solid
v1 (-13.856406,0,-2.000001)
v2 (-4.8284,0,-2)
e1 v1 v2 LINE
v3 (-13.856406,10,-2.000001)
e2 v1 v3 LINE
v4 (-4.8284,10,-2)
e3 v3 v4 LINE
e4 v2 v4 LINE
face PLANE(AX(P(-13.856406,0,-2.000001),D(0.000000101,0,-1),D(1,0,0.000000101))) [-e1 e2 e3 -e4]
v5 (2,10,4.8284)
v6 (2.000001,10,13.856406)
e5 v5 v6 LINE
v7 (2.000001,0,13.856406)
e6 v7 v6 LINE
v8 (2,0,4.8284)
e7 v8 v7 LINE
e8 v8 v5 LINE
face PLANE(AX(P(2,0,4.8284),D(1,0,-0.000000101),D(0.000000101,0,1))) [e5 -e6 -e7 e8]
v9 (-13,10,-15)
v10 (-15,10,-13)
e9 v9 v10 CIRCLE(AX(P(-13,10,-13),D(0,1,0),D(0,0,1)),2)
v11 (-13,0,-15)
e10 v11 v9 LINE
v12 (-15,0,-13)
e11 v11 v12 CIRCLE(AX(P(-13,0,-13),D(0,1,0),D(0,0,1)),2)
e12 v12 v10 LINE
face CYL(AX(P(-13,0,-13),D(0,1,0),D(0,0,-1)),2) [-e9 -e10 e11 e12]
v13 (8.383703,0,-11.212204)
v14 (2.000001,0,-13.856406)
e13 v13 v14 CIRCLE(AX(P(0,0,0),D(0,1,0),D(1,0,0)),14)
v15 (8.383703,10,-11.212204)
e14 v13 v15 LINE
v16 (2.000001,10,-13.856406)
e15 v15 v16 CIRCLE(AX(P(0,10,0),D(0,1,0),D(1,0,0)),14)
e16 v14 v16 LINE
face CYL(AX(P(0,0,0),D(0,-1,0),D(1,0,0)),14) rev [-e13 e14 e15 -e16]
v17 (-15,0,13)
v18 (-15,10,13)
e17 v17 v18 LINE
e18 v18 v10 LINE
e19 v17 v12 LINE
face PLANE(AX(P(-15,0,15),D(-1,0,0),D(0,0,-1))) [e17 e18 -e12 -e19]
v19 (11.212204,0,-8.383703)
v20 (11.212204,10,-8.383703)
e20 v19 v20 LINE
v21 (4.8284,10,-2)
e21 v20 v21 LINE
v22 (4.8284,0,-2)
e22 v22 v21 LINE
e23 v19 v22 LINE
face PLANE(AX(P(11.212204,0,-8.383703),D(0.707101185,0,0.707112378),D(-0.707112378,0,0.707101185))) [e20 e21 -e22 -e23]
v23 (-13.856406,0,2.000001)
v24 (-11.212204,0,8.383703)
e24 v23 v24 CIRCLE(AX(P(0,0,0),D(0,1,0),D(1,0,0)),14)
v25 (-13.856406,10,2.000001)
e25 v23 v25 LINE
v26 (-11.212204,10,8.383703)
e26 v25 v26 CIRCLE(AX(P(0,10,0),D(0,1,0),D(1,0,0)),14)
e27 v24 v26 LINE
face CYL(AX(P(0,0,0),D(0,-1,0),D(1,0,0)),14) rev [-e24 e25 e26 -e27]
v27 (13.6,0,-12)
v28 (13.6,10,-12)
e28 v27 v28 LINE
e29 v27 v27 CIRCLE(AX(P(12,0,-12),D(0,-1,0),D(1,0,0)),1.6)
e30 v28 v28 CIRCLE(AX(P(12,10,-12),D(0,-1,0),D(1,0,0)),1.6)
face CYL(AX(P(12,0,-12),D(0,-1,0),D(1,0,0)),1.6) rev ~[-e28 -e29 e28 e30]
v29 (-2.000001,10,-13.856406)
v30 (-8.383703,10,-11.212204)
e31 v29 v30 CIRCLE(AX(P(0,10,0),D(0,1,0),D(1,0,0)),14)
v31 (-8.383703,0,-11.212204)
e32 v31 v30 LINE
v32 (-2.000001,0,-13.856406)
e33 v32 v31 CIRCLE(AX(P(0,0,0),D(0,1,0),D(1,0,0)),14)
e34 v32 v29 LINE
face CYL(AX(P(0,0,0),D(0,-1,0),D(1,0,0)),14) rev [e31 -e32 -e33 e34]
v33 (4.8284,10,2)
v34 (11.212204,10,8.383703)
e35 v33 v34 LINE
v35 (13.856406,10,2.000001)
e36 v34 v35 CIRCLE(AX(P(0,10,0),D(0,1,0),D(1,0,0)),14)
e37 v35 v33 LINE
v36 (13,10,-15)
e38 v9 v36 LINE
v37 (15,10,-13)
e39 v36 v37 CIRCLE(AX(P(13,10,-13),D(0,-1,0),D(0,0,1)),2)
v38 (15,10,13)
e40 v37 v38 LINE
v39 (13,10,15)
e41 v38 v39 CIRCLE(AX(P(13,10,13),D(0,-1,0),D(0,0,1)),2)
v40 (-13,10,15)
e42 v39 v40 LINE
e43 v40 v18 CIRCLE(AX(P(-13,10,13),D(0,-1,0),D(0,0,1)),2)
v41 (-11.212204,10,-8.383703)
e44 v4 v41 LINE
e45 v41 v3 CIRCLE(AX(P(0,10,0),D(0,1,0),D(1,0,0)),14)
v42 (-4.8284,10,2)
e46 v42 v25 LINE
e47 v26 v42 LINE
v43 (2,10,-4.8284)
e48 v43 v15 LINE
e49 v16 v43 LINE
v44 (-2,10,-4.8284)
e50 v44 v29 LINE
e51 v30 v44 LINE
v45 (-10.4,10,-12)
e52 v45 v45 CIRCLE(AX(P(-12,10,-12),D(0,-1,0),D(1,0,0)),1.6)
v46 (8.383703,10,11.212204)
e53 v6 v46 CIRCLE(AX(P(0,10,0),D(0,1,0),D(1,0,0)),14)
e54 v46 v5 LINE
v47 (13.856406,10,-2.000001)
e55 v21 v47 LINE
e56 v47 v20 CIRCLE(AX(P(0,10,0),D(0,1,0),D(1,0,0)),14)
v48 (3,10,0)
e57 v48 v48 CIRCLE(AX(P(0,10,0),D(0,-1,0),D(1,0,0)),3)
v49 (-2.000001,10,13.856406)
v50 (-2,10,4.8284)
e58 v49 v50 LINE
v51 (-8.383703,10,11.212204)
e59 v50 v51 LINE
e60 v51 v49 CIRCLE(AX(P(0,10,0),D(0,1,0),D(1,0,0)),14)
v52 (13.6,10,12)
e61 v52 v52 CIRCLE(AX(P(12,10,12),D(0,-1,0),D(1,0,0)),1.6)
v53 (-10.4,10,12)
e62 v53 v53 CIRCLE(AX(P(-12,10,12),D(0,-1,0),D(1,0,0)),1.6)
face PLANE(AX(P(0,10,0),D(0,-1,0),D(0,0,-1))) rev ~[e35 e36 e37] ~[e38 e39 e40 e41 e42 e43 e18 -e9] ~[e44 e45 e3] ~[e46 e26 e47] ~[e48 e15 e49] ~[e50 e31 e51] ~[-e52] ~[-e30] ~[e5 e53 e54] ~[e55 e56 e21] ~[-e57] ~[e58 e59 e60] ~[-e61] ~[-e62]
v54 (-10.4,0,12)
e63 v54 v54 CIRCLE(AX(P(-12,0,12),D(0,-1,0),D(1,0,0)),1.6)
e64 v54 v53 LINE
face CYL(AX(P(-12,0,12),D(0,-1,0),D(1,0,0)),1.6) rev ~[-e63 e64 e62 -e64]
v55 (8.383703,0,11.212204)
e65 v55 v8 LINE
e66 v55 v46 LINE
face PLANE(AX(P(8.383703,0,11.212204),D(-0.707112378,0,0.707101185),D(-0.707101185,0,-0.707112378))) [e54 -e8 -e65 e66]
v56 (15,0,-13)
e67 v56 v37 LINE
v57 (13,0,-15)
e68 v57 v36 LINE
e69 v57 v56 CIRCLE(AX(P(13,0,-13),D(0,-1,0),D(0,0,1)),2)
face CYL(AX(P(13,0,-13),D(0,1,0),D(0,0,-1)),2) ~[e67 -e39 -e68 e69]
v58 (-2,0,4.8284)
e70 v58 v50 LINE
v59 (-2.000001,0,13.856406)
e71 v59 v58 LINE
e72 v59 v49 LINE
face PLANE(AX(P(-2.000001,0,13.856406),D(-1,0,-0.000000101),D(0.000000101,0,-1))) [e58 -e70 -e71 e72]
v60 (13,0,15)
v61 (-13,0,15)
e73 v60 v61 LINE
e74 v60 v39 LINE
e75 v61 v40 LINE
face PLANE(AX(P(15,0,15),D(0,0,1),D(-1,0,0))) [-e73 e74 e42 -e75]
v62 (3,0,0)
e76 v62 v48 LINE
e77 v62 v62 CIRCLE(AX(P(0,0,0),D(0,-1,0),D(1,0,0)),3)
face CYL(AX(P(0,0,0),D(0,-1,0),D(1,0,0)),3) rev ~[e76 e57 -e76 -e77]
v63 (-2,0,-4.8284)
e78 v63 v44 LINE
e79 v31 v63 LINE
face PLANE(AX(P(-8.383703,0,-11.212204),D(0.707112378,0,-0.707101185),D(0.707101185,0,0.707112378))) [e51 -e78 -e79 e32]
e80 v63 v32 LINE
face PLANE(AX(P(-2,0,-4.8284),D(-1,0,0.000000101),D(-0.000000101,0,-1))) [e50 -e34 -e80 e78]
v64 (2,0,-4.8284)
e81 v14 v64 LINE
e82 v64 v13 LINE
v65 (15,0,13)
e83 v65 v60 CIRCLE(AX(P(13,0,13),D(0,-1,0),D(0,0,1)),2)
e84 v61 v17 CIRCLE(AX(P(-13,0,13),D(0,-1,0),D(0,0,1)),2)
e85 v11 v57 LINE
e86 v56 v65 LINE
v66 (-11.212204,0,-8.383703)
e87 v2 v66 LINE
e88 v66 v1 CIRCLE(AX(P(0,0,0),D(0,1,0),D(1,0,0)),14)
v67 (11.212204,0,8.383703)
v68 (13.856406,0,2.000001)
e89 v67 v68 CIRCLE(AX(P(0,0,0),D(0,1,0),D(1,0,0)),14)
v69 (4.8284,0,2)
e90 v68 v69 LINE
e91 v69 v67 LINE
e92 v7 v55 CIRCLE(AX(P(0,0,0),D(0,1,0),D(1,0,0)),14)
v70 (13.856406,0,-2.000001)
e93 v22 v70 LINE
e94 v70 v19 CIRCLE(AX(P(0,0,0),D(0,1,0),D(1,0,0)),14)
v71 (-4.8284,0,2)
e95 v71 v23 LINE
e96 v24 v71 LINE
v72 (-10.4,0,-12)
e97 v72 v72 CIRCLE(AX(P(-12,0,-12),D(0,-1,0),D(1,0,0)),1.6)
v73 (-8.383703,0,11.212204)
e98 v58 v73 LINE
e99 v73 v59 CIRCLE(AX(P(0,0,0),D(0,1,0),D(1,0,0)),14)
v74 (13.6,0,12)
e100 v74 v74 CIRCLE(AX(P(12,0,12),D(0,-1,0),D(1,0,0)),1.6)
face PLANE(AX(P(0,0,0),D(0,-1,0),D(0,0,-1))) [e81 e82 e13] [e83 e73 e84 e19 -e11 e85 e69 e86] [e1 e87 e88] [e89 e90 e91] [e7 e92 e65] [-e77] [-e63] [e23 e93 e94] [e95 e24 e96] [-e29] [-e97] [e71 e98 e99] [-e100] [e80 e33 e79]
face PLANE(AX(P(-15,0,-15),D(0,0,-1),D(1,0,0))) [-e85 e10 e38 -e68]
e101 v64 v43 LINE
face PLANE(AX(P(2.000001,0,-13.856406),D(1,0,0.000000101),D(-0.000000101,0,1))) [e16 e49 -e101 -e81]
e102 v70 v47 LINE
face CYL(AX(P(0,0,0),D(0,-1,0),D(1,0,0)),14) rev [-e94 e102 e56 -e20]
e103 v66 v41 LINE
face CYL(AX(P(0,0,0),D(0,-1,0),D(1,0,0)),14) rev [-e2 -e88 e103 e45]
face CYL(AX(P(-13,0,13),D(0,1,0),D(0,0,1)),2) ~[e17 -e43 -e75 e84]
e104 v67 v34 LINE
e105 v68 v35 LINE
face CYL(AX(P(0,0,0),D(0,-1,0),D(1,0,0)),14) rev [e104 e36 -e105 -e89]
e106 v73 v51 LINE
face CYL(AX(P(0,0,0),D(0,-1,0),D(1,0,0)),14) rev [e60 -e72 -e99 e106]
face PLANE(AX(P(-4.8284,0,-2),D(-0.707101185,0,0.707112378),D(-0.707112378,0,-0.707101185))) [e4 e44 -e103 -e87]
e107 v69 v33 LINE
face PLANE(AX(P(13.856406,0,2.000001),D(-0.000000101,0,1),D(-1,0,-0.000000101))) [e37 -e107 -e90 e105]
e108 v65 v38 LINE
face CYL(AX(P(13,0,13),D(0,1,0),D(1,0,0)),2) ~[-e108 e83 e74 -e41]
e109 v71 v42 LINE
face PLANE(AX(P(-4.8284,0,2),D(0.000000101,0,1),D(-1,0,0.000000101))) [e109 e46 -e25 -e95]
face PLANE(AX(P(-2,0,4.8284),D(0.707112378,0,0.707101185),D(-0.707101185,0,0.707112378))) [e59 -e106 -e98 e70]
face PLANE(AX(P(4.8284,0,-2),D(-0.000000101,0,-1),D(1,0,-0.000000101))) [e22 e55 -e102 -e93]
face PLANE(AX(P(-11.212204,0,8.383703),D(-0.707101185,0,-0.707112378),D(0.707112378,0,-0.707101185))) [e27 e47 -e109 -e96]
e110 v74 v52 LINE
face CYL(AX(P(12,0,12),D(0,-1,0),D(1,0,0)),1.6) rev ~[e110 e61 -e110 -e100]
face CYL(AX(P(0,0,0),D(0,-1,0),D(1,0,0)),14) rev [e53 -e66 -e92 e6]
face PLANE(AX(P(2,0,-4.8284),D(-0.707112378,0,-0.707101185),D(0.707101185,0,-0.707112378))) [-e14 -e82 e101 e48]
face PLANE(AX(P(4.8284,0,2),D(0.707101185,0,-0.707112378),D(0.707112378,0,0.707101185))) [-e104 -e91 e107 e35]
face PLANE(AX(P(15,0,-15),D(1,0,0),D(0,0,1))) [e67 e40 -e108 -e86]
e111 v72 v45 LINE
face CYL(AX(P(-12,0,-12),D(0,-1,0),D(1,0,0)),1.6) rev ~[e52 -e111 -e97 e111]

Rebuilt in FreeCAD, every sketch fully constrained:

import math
import FreeCAD as App
import Part
import Sketcher
Q = App.Units.Quantity


def edges_at(feature, points):
    """Names of the edges that pass closest to the given points."""
    edges = feature.Shape.Edges
    near = lambda p: min(range(len(edges)), key=lambda i: edges[i].distToShape(Part.Vertex(*p))[0])
    return sorted({f"Edge{near(p) + 1}" for p in points})


def add_polygon(sketch, points):
    """Adds a closed chain of lines whose ends are joined by coincident constraints."""
    first, n = sketch.GeometryCount, len(points)
    for a, b in zip(points, points[1:] + points[:1]):
        sketch.addGeometry(Part.LineSegment(App.Vector(*a, 0), App.Vector(*b, 0)), False)
    for i in range(n):
        sketch.addConstraint(Sketcher.Constraint("Coincident", first + i, 2, first + (i + 1) % n, 1))

doc = App.newDocument("Part")
params = doc.addObject("Spreadsheet::Sheet", "Params")
for row, (alias, value) in enumerate([
    ("sketch1_diameter", "6 mm"),
    ("sketch1_radius", "14 mm"),
    ("sketch1_diameter2", "3.2 mm"),
    ("sketch1_width", "30 mm"),
    ("pad1_length", "10 mm"),
    ("fillet_radius", "2 mm"),
], start=1):
    params.set(f"A{row}", alias)
    params.set(f"B{row}", "=" + value)
    params.setAlias(f"B{row}", alias)

body = doc.addObject("PartDesign::Body", "Body")

sketch1 = doc.addObject("Sketcher::SketchObject", "Sketch")
body.addObject(sketch1)
sketch1.AttachmentSupport = (doc.XZ_Plane, [""])
sketch1.MapMode = "FlatFace"
add_polygon(sketch1, [(-15, 15), (-15, -15), (15, -15), (15, 15)])
sketch1.addGeometry(Part.Circle(App.Vector(-12, -12, 0), App.Vector(0, 0, 1), 1.6), False)
sketch1.addGeometry(Part.LineSegment(App.Vector(-8.4, -11.2, 0), App.Vector(-2, -4.8, 0)), False)
sketch1.addGeometry(Part.LineSegment(App.Vector(-2, -4.8, 0), App.Vector(-2, -13.9, 0)), False)
sketch1.addGeometry(Part.ArcOfCircle(Part.Circle(App.Vector(0, 0, 0), App.Vector(0, 0, 1), 14), math.radians(-127), math.radians(-98)), False)
sketch1.addGeometry(Part.ArcOfCircle(Part.Circle(App.Vector(0, 0, 0), App.Vector(0, 0, 1), 14), math.radians(-172), math.radians(-143)), False)
sketch1.addGeometry(Part.LineSegment(App.Vector(-13.9, -2, 0), App.Vector(-4.8, -2, 0)), False)
sketch1.addGeometry(Part.LineSegment(App.Vector(-4.8, -2, 0), App.Vector(-11.2, -8.4, 0)), False)
sketch1.addGeometry(Part.ArcOfCircle(Part.Circle(App.Vector(0, 0, 0), App.Vector(0, 0, 1), 14), math.radians(-82), math.radians(-53)), False)
sketch1.addGeometry(Part.LineSegment(App.Vector(2, -13.9, 0), App.Vector(2, -4.8, 0)), False)
sketch1.addGeometry(Part.LineSegment(App.Vector(2, -4.8, 0), App.Vector(8.4, -11.2, 0)), False)
sketch1.addGeometry(Part.Circle(App.Vector(12, -12, 0), App.Vector(0, 0, 1), 1.6), False)
sketch1.addGeometry(Part.ArcOfCircle(Part.Circle(App.Vector(0, 0, 0), App.Vector(0, 0, 1), 14), math.radians(-37), math.radians(-8)), False)
sketch1.addGeometry(Part.LineSegment(App.Vector(11.2, -8.4, 0), App.Vector(4.8, -2, 0)), False)
sketch1.addGeometry(Part.LineSegment(App.Vector(4.8, -2, 0), App.Vector(13.9, -2, 0)), False)
sketch1.addGeometry(Part.ArcOfCircle(Part.Circle(App.Vector(0, 0, 0), App.Vector(0, 0, 1), 14), math.radians(143), math.radians(172)), False)
sketch1.addGeometry(Part.LineSegment(App.Vector(-11.2, 8.4, 0), App.Vector(-4.8, 2, 0)), False)
sketch1.addGeometry(Part.LineSegment(App.Vector(-4.8, 2, 0), App.Vector(-13.9, 2, 0)), False)
sketch1.addGeometry(Part.Circle(App.Vector(-12, 12, 0), App.Vector(0, 0, 1), 1.6), False)
sketch1.addGeometry(Part.LineSegment(App.Vector(-2, 4.8, 0), App.Vector(-8.4, 11.2, 0)), False)
sketch1.addGeometry(Part.ArcOfCircle(Part.Circle(App.Vector(0, 0, 0), App.Vector(0, 0, 1), 14), math.radians(98), math.radians(127)), False)
sketch1.addGeometry(Part.LineSegment(App.Vector(-2, 13.9, 0), App.Vector(-2, 4.8, 0)), False)
sketch1.addGeometry(Part.Circle(App.Vector(0, 0, 0), App.Vector(0, 0, 1), 3), False)
sketch1.addGeometry(Part.ArcOfCircle(Part.Circle(App.Vector(0, 0, 0), App.Vector(0, 0, 1), 14), math.radians(8), math.radians(37)), False)
sketch1.addGeometry(Part.LineSegment(App.Vector(13.9, 2, 0), App.Vector(4.8, 2, 0)), False)
sketch1.addGeometry(Part.LineSegment(App.Vector(4.8, 2, 0), App.Vector(11.2, 8.4, 0)), False)
sketch1.addGeometry(Part.LineSegment(App.Vector(2, 4.8, 0), App.Vector(2, 13.9, 0)), False)
sketch1.addGeometry(Part.ArcOfCircle(Part.Circle(App.Vector(0, 0, 0), App.Vector(0, 0, 1), 14), math.radians(53), math.radians(82)), False)
sketch1.addGeometry(Part.LineSegment(App.Vector(8.4, 11.2, 0), App.Vector(2, 4.8, 0)), False)
sketch1.addGeometry(Part.Circle(App.Vector(12, 12, 0), App.Vector(0, 0, 1), 1.6), False)
sketch1.addConstraint([
    Sketcher.Constraint("Coincident", 5, 2, 6, 1),
    Sketcher.Constraint("Coincident", 6, 2, 7, 2),
    Sketcher.Constraint("Coincident", 7, 1, 5, 1),
    Sketcher.Constraint("Coincident", 8, 1, 9, 1),
    Sketcher.Constraint("Coincident", 9, 2, 10, 1),
    Sketcher.Constraint("Coincident", 10, 2, 8, 2),
    Sketcher.Constraint("Coincident", 11, 1, 12, 1),
    Sketcher.Constraint("Coincident", 12, 2, 13, 1),
    Sketcher.Constraint("Coincident", 13, 2, 11, 2),
    Sketcher.Constraint("Coincident", 15, 1, 16, 1),
    Sketcher.Constraint("Coincident", 16, 2, 17, 1),
    Sketcher.Constraint("Coincident", 17, 2, 15, 2),
    Sketcher.Constraint("Coincident", 18, 1, 19, 1),
    Sketcher.Constraint("Coincident", 19, 2, 20, 1),
    Sketcher.Constraint("Coincident", 20, 2, 18, 2),
    Sketcher.Constraint("Coincident", 22, 2, 23, 2),
    Sketcher.Constraint("Coincident", 23, 1, 24, 1),
    Sketcher.Constraint("Coincident", 24, 2, 22, 1),
    Sketcher.Constraint("Coincident", 26, 1, 27, 1),
    Sketcher.Constraint("Coincident", 27, 2, 28, 1),
    Sketcher.Constraint("Coincident", 28, 2, 26, 2),
    Sketcher.Constraint("Coincident", 29, 2, 30, 2),
    Sketcher.Constraint("Coincident", 30, 1, 31, 1),
    Sketcher.Constraint("Coincident", 31, 2, 29, 1),
    Sketcher.Constraint("Vertical", 0),
    Sketcher.Constraint("Horizontal", 1),
    Sketcher.Constraint("Vertical", 2),
    Sketcher.Constraint("Horizontal", 3),
    Sketcher.Constraint("Vertical", 6),
    Sketcher.Constraint("Horizontal", 9),
    Sketcher.Constraint("Vertical", 12),
    Sketcher.Constraint("Horizontal", 17),
    Sketcher.Constraint("Horizontal", 20),
    Sketcher.Constraint("Vertical", 24),
    Sketcher.Constraint("Horizontal", 27),
    Sketcher.Constraint("Vertical", 29),
    Sketcher.Constraint("Coincident", 7, 3, -1, 1),
    Sketcher.Constraint("Coincident", 8, 3, -1, 1),
    Sketcher.Constraint("Coincident", 11, 3, -1, 1),
    Sketcher.Constraint("Coincident", 15, 3, -1, 1),
    Sketcher.Constraint("Coincident", 18, 3, -1, 1),
    Sketcher.Constraint("Coincident", 23, 3, -1, 1),
    Sketcher.Constraint("Coincident", 25, 3, -1, 1),
    Sketcher.Constraint("Coincident", 26, 3, -1, 1),
    Sketcher.Constraint("Coincident", 30, 3, -1, 1),
    Sketcher.Constraint("Equal", 7, 8),
    Sketcher.Constraint("Equal", 8, 11),
    Sketcher.Constraint("Equal", 4, 14),
    Sketcher.Constraint("Equal", 11, 15),
    Sketcher.Constraint("Equal", 15, 18),
    Sketcher.Constraint("Equal", 14, 21),
    Sketcher.Constraint("Equal", 18, 23),
    Sketcher.Constraint("Equal", 23, 26),
    Sketcher.Constraint("Equal", 26, 30),
    Sketcher.Constraint("Equal", 21, 32),
    Sketcher.Constraint("Symmetric", 14, 3, 21, 3, -1, 1),
    Sketcher.Constraint("Symmetric", 4, 3, 32, 3, -1, 1),
    Sketcher.Constraint("Symmetric", 0, 2, 2, 2, -1, 1),
    Sketcher.Constraint("Symmetric", 16, 2, 19, 2, -1, 1),
    Sketcher.Constraint("Symmetric", 12, 2, 24, 2, -1, 1),
    Sketcher.Constraint("Symmetric", 9, 2, 27, 2, -1, 1),
    Sketcher.Constraint("Symmetric", 5, 2, 31, 2, -1, 1),
    Sketcher.Constraint("Symmetric", 4, 3, 14, 3, -2),
    Sketcher.Constraint("Symmetric", 5, 2, 12, 2, -2),
    Sketcher.Constraint("Symmetric", 9, 2, 16, 2, -2),
    Sketcher.Constraint("Parallel", 5, 10),
    Sketcher.Constraint("Perpendicular", 10, 13),
    Sketcher.Constraint("Parallel", 13, 16),
    Sketcher.Constraint("Parallel", 16, 19),
    Sketcher.Constraint("Parallel", 19, 22),
    Sketcher.Constraint("Perpendicular", 22, 28),
    Sketcher.Constraint("Parallel", 28, 31),
    Sketcher.Constraint("Horizontal", 7, 1, 13, 2),
    Sketcher.Constraint("Equal", 3, 0),
    Sketcher.Constraint("Equal", 27, 6),
    Sketcher.Constraint("Equal", 5, 10),
    Sketcher.Constraint("Diameter", 25, Q("6 mm")),
    Sketcher.Constraint("Radius", 7, Q("14 mm")),
    Sketcher.Constraint("Diameter", 4, Q("3.2 mm")),
    Sketcher.Constraint("DistanceX", 1, 1, 1, 2, Q("30 mm")),
    Sketcher.Constraint("DistanceX", 4, 3, -1, 1, Q("12 mm")),
    Sketcher.Constraint("DistanceY", 4, 3, -1, 1, Q("12 mm")),
    Sketcher.Constraint("DistanceX", 5, 2, -1, 1, Q("2 mm")),
    Sketcher.Constraint("DistanceX", 9, 1, 9, 2, Q("9.028 mm")),
])
sketch1.setExpression("Constraints[80]", "Params.sketch1_diameter")
sketch1.setExpression("Constraints[81]", "Params.sketch1_radius")
sketch1.setExpression("Constraints[82]", "Params.sketch1_diameter2")
sketch1.setExpression("Constraints[83]", "Params.sketch1_width")
pad1 = doc.addObject("PartDesign::Pad", "Pad")
body.addObject(pad1)
pad1.Profile = sketch1
pad1.setExpression("Length", "Params.pad1_length")
pad1.Reversed = True
doc.recompute()

fillet = doc.addObject("PartDesign::Fillet", "Fillet")
body.addObject(fillet)
fillet.Base = (pad1, edges_at(pad1, [
    (-15, 5, 15),
    (15, 5, 15),
    (-15, 5, -15),
    (15, 5, -15),
]))
fillet.setExpression("Radius", "Params.fillet_radius")

doc.recompute()
